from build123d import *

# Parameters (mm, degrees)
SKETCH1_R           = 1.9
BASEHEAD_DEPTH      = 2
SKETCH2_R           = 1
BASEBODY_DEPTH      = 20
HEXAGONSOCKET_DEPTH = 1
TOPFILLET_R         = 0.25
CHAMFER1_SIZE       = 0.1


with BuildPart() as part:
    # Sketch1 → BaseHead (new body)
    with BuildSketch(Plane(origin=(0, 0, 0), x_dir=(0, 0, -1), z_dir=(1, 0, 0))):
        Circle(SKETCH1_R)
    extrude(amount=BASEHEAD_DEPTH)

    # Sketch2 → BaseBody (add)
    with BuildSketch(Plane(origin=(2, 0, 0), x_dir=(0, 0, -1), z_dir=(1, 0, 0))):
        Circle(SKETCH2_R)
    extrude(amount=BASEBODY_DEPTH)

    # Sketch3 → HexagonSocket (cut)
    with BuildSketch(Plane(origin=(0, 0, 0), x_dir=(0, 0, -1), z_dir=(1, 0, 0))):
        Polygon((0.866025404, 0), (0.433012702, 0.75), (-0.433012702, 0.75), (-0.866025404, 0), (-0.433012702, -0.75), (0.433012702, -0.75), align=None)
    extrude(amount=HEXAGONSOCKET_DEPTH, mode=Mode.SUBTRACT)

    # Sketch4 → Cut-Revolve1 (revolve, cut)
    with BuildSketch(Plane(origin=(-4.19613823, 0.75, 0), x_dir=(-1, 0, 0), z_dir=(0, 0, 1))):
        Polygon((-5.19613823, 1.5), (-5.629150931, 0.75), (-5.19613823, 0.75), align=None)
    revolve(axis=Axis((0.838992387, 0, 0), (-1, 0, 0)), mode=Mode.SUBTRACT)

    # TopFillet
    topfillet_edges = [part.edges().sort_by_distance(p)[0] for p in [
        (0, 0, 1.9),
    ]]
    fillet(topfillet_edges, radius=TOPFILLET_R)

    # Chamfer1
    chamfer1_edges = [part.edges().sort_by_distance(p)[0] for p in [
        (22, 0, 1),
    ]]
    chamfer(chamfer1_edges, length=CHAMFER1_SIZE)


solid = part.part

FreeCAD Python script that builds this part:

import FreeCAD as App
import Part
import Sketcher
Q = App.Units.Quantity


def edges_at(feature, points):
    """Names of the edges that pass closest to the given points."""
    edges = feature.Shape.Edges
    near = lambda p: min(range(len(edges)), key=lambda i: edges[i].distToShape(Part.Vertex(*p))[0])
    return sorted({f"Edge{near(p) + 1}" for p in points})

doc = App.newDocument("Part")
body = doc.addObject("PartDesign::Body", "Body")

# Sketch on YZ plane
sketch1 = body.newObject("Sketcher::SketchObject", "Sketch")
sketch1.AttachmentSupport = (doc.getObject("YZ_Plane"), [""])
sketch1.MapMode = "FlatFace"
sketch1.addGeometry(Part.Circle(App.Vector(0, 0, 0), App.Vector(0, 0, 1), 1.9), False)
sketch1.addConstraint(Sketcher.Constraint("Coincident", 0, 3, -1, 1))
sketch1.addConstraint(Sketcher.Constraint("Diameter", 0, Q("3.8 mm")))
pad1 = body.newObject("PartDesign::Pad", "Pad")
pad1.Profile = sketch1
pad1.Length = 2

# Sketch on YZ plane
sketch2 = body.newObject("Sketcher::SketchObject", "Sketch001")
sketch2.AttachmentSupport = (doc.getObject("YZ_Plane"), [""])
sketch2.MapMode = "FlatFace"
sketch2.AttachmentOffset = App.Placement(App.Vector(0, 0, 2), App.Rotation())
sketch2.addGeometry(Part.Circle(App.Vector(0, 0, 0), App.Vector(0, 0, 1), 1), False)
sketch2.addConstraint(Sketcher.Constraint("Coincident", 0, 3, -1, 1))
sketch2.addConstraint(Sketcher.Constraint("Diameter", 0, Q("2 mm")))
pad2 = body.newObject("PartDesign::Pad", "Pad001")
pad2.Profile = sketch2
pad2.Length = 20

# Sketch on YZ plane
sketch3 = body.newObject("Sketcher::SketchObject", "Sketch002")
sketch3.AttachmentSupport = (doc.getObject("YZ_Plane"), [""])
sketch3.MapMode = "FlatFace"
sketch3.addGeometry(Part.LineSegment(App.Vector(0, -0.9, 0), App.Vector(0.8, -0.4, 0)), False)
sketch3.addGeometry(Part.LineSegment(App.Vector(0.8, -0.4, 0), App.Vector(0.8, 0.4, 0)), False)
sketch3.addGeometry(Part.LineSegment(App.Vector(0.8, 0.4, 0), App.Vector(0, 0.9, 0)), False)
sketch3.addGeometry(Part.LineSegment(App.Vector(0, 0.9, 0), App.Vector(-0.8, 0.4, 0)), False)
sketch3.addGeometry(Part.LineSegment(App.Vector(-0.8, 0.4, 0), App.Vector(-0.8, -0.4, 0)), False)
sketch3.addGeometry(Part.LineSegment(App.Vector(-0.8, -0.4, 0), App.Vector(0, -0.9, 0)), False)
sketch3.addConstraint(Sketcher.Constraint("Coincident", 0, 2, 1, 1))
sketch3.addConstraint(Sketcher.Constraint("Coincident", 1, 2, 2, 1))
sketch3.addConstraint(Sketcher.Constraint("Coincident", 2, 2, 3, 1))
sketch3.addConstraint(Sketcher.Constraint("Coincident", 3, 2, 4, 1))
sketch3.addConstraint(Sketcher.Constraint("Coincident", 4, 2, 5, 1))
sketch3.addConstraint(Sketcher.Constraint("Coincident", 5, 2, 0, 1))
sketch3.addConstraint(Sketcher.Constraint("Vertical", 1))
sketch3.addConstraint(Sketcher.Constraint("Vertical", 4))
sketch3.addConstraint(Sketcher.Constraint("Symmetric", 0, 2, 3, 2, -1, 1))
sketch3.addConstraint(Sketcher.Constraint("Symmetric", 2, 2, 5, 2, -1, 1))
sketch3.addConstraint(Sketcher.Constraint("PointOnObject", 2, 2, -2))
sketch3.addConstraint(Sketcher.Constraint("Parallel", 2, 5))
sketch3.addConstraint(Sketcher.Constraint("Horizontal", 1, 2, 3, 2))
sketch3.addConstraint(Sketcher.Constraint("Angle", 0, Q("30 deg")))
sketch3.addConstraint(Sketcher.Constraint("DistanceX", 3, 2, 1, 2, Q("1.5 mm")))
sketch3.addConstraint(Sketcher.Constraint("DistanceY", 1, 1, 1, 2, Q("0.866025 mm")))
pocket1 = body.newObject("PartDesign::Pocket", "Pocket")
pocket1.Profile = sketch3
pocket1.Length = 1
pocket1.Reversed = True

# Sketch on XY plane
sketch4 = body.newObject("Sketcher::SketchObject", "Sketch003")
sketch4.AttachmentSupport = (doc.getObject("XY_Plane"), [""])
sketch4.MapMode = "FlatFace"
sketch4.addGeometry(Part.LineSegment(App.Vector(1, -0.75, 0), App.Vector(1.43, 0, 0)), False)
sketch4.addGeometry(Part.LineSegment(App.Vector(1.43, 0, 0), App.Vector(1, 0, 0)), False)
sketch4.addGeometry(Part.LineSegment(App.Vector(1, 0, 0), App.Vector(1, -0.75, 0)), False)
sketch4.addConstraint(Sketcher.Constraint("Coincident", 0, 2, 1, 1))
sketch4.addConstraint(Sketcher.Constraint("Coincident", 1, 2, 2, 1))
sketch4.addConstraint(Sketcher.Constraint("Coincident", 2, 2, 0, 1))
sketch4.addConstraint(Sketcher.Constraint("Horizontal", 1))
sketch4.addConstraint(Sketcher.Constraint("Vertical", 2))
sketch4.addConstraint(Sketcher.Constraint("PointOnObject", 0, 2, -1))
sketch4.addConstraint(Sketcher.Constraint("Angle", 0, Q("60 deg")))
sketch4.addConstraint(Sketcher.Constraint("DistanceX", -1, 1, 1, 2, Q("1 mm")))
sketch4.addConstraint(Sketcher.Constraint("DistanceY", 2, 2, 2, 1, Q("0.75 mm")))
groove = body.newObject("PartDesign::Groove", "Groove")
groove.Profile = sketch4
groove.ReferenceAxis = (sketch4, ["H_Axis"])
groove.Angle = 360
doc.recompute()

fillet = body.newObject("PartDesign::Fillet", "Fillet")
fillet.Base = (groove, edges_at(groove, [(0, 0, 1.9)]))
fillet.Radius = 0.25
doc.recompute()

chamfer = body.newObject("PartDesign::Chamfer", "Chamfer")
chamfer.Base = (fillet, edges_at(fillet, [(22, 0, 1)]))
chamfer.Size = 0.1

doc.recompute()
